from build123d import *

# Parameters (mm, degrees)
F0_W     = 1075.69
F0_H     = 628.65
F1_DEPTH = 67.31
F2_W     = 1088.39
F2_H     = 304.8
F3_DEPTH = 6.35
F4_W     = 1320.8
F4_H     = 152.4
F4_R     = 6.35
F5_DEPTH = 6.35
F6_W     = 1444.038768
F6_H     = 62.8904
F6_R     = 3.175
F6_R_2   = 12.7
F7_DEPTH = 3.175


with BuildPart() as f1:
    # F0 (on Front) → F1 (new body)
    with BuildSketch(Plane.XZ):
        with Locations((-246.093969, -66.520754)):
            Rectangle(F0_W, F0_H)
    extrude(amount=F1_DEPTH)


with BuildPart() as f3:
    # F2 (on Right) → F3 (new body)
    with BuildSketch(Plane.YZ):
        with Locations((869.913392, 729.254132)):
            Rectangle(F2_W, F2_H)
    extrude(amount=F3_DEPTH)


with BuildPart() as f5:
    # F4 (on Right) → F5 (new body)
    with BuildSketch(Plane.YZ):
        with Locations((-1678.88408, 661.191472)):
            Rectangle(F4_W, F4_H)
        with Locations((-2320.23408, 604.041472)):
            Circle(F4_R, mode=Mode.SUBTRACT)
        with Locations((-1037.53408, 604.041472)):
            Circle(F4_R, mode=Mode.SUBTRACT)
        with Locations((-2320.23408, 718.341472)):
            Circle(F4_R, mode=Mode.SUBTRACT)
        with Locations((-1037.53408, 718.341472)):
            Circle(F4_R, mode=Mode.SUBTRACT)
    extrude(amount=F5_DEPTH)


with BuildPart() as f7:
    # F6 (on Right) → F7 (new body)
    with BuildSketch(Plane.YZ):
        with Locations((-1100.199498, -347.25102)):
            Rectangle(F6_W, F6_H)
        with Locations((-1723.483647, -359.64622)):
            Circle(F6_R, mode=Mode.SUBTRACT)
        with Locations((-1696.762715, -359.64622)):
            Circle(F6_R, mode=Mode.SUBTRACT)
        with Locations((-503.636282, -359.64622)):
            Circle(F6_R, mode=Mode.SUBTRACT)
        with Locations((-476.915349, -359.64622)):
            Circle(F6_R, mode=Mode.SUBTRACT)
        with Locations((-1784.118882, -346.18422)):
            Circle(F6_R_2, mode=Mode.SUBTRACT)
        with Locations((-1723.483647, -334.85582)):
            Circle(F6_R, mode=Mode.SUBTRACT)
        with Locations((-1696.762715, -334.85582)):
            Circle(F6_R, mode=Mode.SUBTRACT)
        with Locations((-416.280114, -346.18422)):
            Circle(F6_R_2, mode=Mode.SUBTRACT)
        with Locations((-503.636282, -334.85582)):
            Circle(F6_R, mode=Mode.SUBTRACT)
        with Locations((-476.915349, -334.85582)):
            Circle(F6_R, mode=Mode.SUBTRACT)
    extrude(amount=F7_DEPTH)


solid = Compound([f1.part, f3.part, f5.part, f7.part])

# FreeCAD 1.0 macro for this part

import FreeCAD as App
import Part
import Sketcher
from FreeCAD import Vector
Q = App.Units.Quantity

doc = App.newDocument("Part")
body = doc.addObject("PartDesign::Body", "Body")

# Sketch on XZ plane
sketch1 = doc.addObject("Sketcher::SketchObject", "Sketch")
body.addObject(sketch1)
sketch1.AttachmentSupport = (doc.XZ_Plane, [""])
sketch1.MapMode = "FlatFace"
sketch1.addGeometry([
    Part.LineSegment(Vector(-784, 248, 0), Vector(-784, -381, 0)),
    Part.LineSegment(Vector(-784, -381, 0), Vector(292, -381, 0)),
    Part.LineSegment(Vector(292, -381, 0), Vector(292, 248, 0)),
    Part.LineSegment(Vector(292, 248, 0), Vector(-784, 248, 0)),
], False)
sketch1.addConstraint([
    Sketcher.Constraint("Coincident", 0, 2, 1, 1),
    Sketcher.Constraint("Coincident", 1, 2, 2, 1),
    Sketcher.Constraint("Coincident", 2, 2, 3, 1),
    Sketcher.Constraint("Coincident", 3, 2, 0, 1),
    Sketcher.Constraint("Vertical", 0),
    Sketcher.Constraint("Horizontal", 1),
    Sketcher.Constraint("Vertical", 2),
    Sketcher.Constraint("Horizontal", 3),
    Sketcher.Constraint("DistanceX", 1, 1, 1, 2, Q("42.35 in")),
    Sketcher.Constraint("DistanceY", 0, 2, 0, 1, Q("24.75 in")),
    Sketcher.Constraint("DistanceX", 0, 2, -1, 1, Q("783.938969 mm")),
    Sketcher.Constraint("DistanceY", 0, 2, -1, 1, Q("380.845754 mm")),
])
pad1 = doc.addObject("PartDesign::Pad", "Pad")
body.addObject(pad1)
pad1.Profile = sketch1
pad1.Length = Q("2.65 in")
body2 = doc.addObject("PartDesign::Body", "Body001")

# Sketch on YZ plane
sketch2 = doc.addObject("Sketcher::SketchObject", "Sketch001")
body2.addObject(sketch2)
sketch2.AttachmentSupport = (doc.getObject("YZ_Plane001"), [""])
sketch2.MapMode = "FlatFace"
sketch2.addGeometry([
    Part.LineSegment(Vector(326, 882, 0), Vector(326, 577, 0)),
    Part.LineSegment(Vector(326, 577, 0), Vector(1414, 577, 0)),
    Part.LineSegment(Vector(1414, 577, 0), Vector(1414, 882, 0)),
    Part.LineSegment(Vector(1414, 882, 0), Vector(326, 882, 0)),
], False)
sketch2.addConstraint([
    Sketcher.Constraint("Coincident", 0, 2, 1, 1),
    Sketcher.Constraint("Coincident", 1, 2, 2, 1),
    Sketcher.Constraint("Coincident", 2, 2, 3, 1),
    Sketcher.Constraint("Coincident", 3, 2, 0, 1),
    Sketcher.Constraint("Vertical", 0),
    Sketcher.Constraint("Horizontal", 1),
    Sketcher.Constraint("Vertical", 2),
    Sketcher.Constraint("Horizontal", 3),
    Sketcher.Constraint("DistanceY", 0, 2, 0, 1, Q("12 in")),
    Sketcher.Constraint("DistanceX", 1, 1, 1, 2, Q("42.85 in")),
    Sketcher.Constraint("DistanceX", -1, 1, 0, 2, Q("325.718392 mm")),
    Sketcher.Constraint("DistanceY", -1, 1, 0, 2, Q("576.854132 mm")),
])
pad2 = doc.addObject("PartDesign::Pad", "Pad001")
body2.addObject(pad2)
pad2.Profile = sketch2
pad2.Length = Q("0.25 in")
body3 = doc.addObject("PartDesign::Body", "Body002")

# Sketch on YZ plane
sketch3 = doc.addObject("Sketcher::SketchObject", "Sketch002")
body3.addObject(sketch3)
sketch3.AttachmentSupport = (doc.getObject("YZ_Plane002"), [""])
sketch3.MapMode = "FlatFace"
sketch3.addGeometry([
    Part.LineSegment(Vector(-2339, 737, 0), Vector(-2339, 585, 0)),  # 0
    Part.LineSegment(Vector(-2339, 585, 0), Vector(-1018, 585, 0)),  # 1
    Part.LineSegment(Vector(-1018, 585, 0), Vector(-1018, 737, 0)),  # 2
    Part.LineSegment(Vector(-1018, 737, 0), Vector(-2339, 737, 0)),  # 3
    Part.Circle(Vector(-2320, 604, 0), Vector(0, 0, 1), 6),  # 4
    Part.Circle(Vector(-1038, 604, 0), Vector(0, 0, 1), 6),  # 5
    Part.Circle(Vector(-2320, 718, 0), Vector(0, 0, 1), 6),  # 6
    Part.Circle(Vector(-1038, 718, 0), Vector(0, 0, 1), 6),  # 7
], False)
sketch3.addConstraint([
    Sketcher.Constraint("Coincident", 0, 2, 1, 1),
    Sketcher.Constraint("Coincident", 1, 2, 2, 1),
    Sketcher.Constraint("Coincident", 2, 2, 3, 1),
    Sketcher.Constraint("Coincident", 3, 2, 0, 1),
    Sketcher.Constraint("Vertical", 0),
    Sketcher.Constraint("Horizontal", 1),
    Sketcher.Constraint("Vertical", 2),
    Sketcher.Constraint("Horizontal", 3),
    Sketcher.Constraint("Equal", 4, 5),
    Sketcher.Constraint("Equal", 5, 6),
    Sketcher.Constraint("Equal", 6, 7),
    Sketcher.Constraint("Horizontal", 4, 3, 5, 3),
    Sketcher.Constraint("Horizontal", 6, 3, 7, 3),
    Sketcher.Constraint("Vertical", 4, 3, 6, 3),
    Sketcher.Constraint("Vertical", 5, 3, 7, 3),
    Sketcher.Constraint("Diameter", 4, Q("0.5 in")),
    Sketcher.Constraint("DistanceX", 1, 1, 1, 2, Q("52 in")),
    Sketcher.Constraint("DistanceY", 0, 2, 0, 1, Q("6 in")),
    Sketcher.Constraint("DistanceX", 4, 3, 5, 3, Q("50.5 in")),
    Sketcher.Constraint("DistanceY", 4, 3, 6, 3, Q("4.5 in")),
    Sketcher.Constraint("DistanceX", 0, 2, 4, 3, Q("0.75 in")),
    Sketcher.Constraint("DistanceY", 0, 2, 4, 3, Q("0.75 in")),
    Sketcher.Constraint("DistanceX", 4, 3, -1, 1, Q("2320.23408 mm")),
    Sketcher.Constraint("DistanceY", -1, 1, 4, 3, Q("604.041472 mm")),
])
pad3 = doc.addObject("PartDesign::Pad", "Pad002")
body3.addObject(pad3)
pad3.Profile = sketch3
pad3.Length = Q("0.25 in")
body4 = doc.addObject("PartDesign::Body", "Body003")

# Sketch on YZ plane
sketch4 = doc.addObject("Sketcher::SketchObject", "Sketch003")
body4.addObject(sketch4)
sketch4.AttachmentSupport = (doc.getObject("YZ_Plane003"), [""])
sketch4.MapMode = "FlatFace"
sketch4.addGeometry([
    Part.LineSegment(Vector(-1822.2, -315.8, 0), Vector(-1822.2, -378.7, 0)),  # 0
    Part.LineSegment(Vector(-1822.2, -378.7, 0), Vector(-378.2, -378.7, 0)),  # 1
    Part.LineSegment(Vector(-378.2, -378.7, 0), Vector(-378.2, -315.8, 0)),  # 2
    Part.LineSegment(Vector(-378.2, -315.8, 0), Vector(-1822.2, -315.8, 0)),  # 3
    Part.Circle(Vector(-1723.5, -359.6, 0), Vector(0, 0, 1), 3.2),  # 4
    Part.Circle(Vector(-1696.8, -359.6, 0), Vector(0, 0, 1), 3.2),  # 5
    Part.Circle(Vector(-503.6, -359.6, 0), Vector(0, 0, 1), 3.2),  # 6
    Part.Circle(Vector(-476.9, -359.6, 0), Vector(0, 0, 1), 3.2),  # 7
    Part.Circle(Vector(-1784.1, -346.2, 0), Vector(0, 0, 1), 12.7),  # 8
    Part.Circle(Vector(-1723.5, -334.9, 0), Vector(0, 0, 1), 3.2),  # 9
    Part.Circle(Vector(-1696.8, -334.9, 0), Vector(0, 0, 1), 3.2),  # 10
    Part.Circle(Vector(-416.3, -346.2, 0), Vector(0, 0, 1), 12.7),  # 11
    Part.Circle(Vector(-503.6, -334.9, 0), Vector(0, 0, 1), 3.2),  # 12
    Part.Circle(Vector(-476.9, -334.9, 0), Vector(0, 0, 1), 3.2),  # 13
], False)
sketch4.addConstraint([
    Sketcher.Constraint("Coincident", 0, 2, 1, 1),
    Sketcher.Constraint("Coincident", 1, 2, 2, 1),
    Sketcher.Constraint("Coincident", 2, 2, 3, 1),
    Sketcher.Constraint("Coincident", 3, 2, 0, 1),
    Sketcher.Constraint("Vertical", 0),
    Sketcher.Constraint("Horizontal", 1),
    Sketcher.Constraint("Vertical", 2),
    Sketcher.Constraint("Horizontal", 3),
    Sketcher.Constraint("Equal", 4, 5),
    Sketcher.Constraint("Equal", 5, 6),
    Sketcher.Constraint("Equal", 6, 7),
    Sketcher.Constraint("Equal", 7, 9),
    Sketcher.Constraint("Equal", 9, 10),
    Sketcher.Constraint("Equal", 8, 11),
    Sketcher.Constraint("Equal", 10, 12),
    Sketcher.Constraint("Equal", 12, 13),
    Sketcher.Constraint("Horizontal", 4, 3, 5, 3),
    Sketcher.Constraint("Horizontal", 5, 3, 6, 3),
    Sketcher.Constraint("Horizontal", 6, 3, 7, 3),
    Sketcher.Constraint("Horizontal", 9, 3, 10, 3),
    Sketcher.Constraint("Horizontal", 8, 3, 11, 3),
    Sketcher.Constraint("Horizontal", 10, 3, 12, 3),
    Sketcher.Constraint("Horizontal", 12, 3, 13, 3),
    Sketcher.Constraint("Vertical", 4, 3, 9, 3),
    Sketcher.Constraint("Vertical", 5, 3, 10, 3),
    Sketcher.Constraint("Vertical", 6, 3, 12, 3),
    Sketcher.Constraint("Vertical", 7, 3, 13, 3),
    Sketcher.Constraint("Diameter", 8, Q("1 in")),
    Sketcher.Constraint("Diameter", 4, Q("0.25 in")),
    Sketcher.Constraint("DistanceX", 0, 2, 8, 3, Q("1.5 in")),
    Sketcher.Constraint("DistanceX", 11, 3, 1, 2, Q("1.5 in")),
    Sketcher.Constraint("DistanceY", 0, 2, 0, 1, Q("2.476 in")),
    Sketcher.Constraint("DistanceY", 4, 3, 8, 3, Q("0.53 in")),
    Sketcher.Constraint("DistanceY", 0, 2, 8, 3, Q("1.28 in")),
    Sketcher.Constraint("DistanceY", 13, 3, 2, 2, Q("0.75 in")),
    Sketcher.Constraint("DistanceY", 4, 3, -1, 1, Q("14.1593 in")),
    Sketcher.Constraint("DistanceX", 6, 3, -1, 1, Q("19.8282001 in")),
    Sketcher.Constraint("DistanceX", 4, 3, 7, 3, Q("1246.568298 mm")),
    Sketcher.Constraint("DistanceX", 8, 3, 6, 3, Q("1280.4826 mm")),
    Sketcher.Constraint("DistanceX", 10, 3, 11, 3, Q("1280.482601 mm")),
    Sketcher.Constraint("DistanceX", 1, 1, 1, 2, Q("1444.038768 mm")),
    Sketcher.Constraint("DistanceX", 7, 3, -1, 1, Q("476.915349 mm")),
])
pad4 = doc.addObject("PartDesign::Pad", "Pad003")
body4.addObject(pad4)
pad4.Profile = sketch4
pad4.Length = Q("0.125 in")

doc.recompute()
